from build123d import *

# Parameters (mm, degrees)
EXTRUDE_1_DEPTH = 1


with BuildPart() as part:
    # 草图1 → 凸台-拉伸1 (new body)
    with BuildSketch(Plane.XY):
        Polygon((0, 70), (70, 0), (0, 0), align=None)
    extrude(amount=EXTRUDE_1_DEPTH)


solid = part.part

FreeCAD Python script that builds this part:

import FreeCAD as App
import Part
import Sketcher

V = App.Vector
Q = App.Units.Quantity

doc = App.newDocument("Part")
body = doc.addObject("PartDesign::Body", "Body")

sketch1 = body.newObject("Sketcher::SketchObject", "Sketch")
sketch1.AttachmentSupport = (doc.getObject("XY_Plane"), [""])
sketch1.MapMode = "FlatFace"
sketch1.addGeometry(Part.LineSegment(V(70, 0, 0), V(0, 70, 0)), False)
sketch1.addGeometry(Part.LineSegment(V(0, 70, 0), V(0, 0, 0)), False)
sketch1.addGeometry(Part.LineSegment(V(0, 0, 0), V(70, 0, 0)), False)
sketch1.addConstraint(Sketcher.Constraint("Coincident", 0, 2, 1, 1))
sketch1.addConstraint(Sketcher.Constraint("Coincident", 1, 2, 2, 1))
sketch1.addConstraint(Sketcher.Constraint("Coincident", 2, 2, 0, 1))
sketch1.addConstraint(Sketcher.Constraint("Vertical", 1))
sketch1.addConstraint(Sketcher.Constraint("Horizontal", 2))
sketch1.addConstraint(Sketcher.Constraint("Coincident", 1, 2, -1, 1))
sketch1.addConstraint(Sketcher.Constraint("Equal", 2, 1))
sketch1.addConstraint(Sketcher.Constraint("DistanceX", 2, 1, 2, 2, Q("70 mm")))
pad1 = body.newObject("PartDesign::Pad", "Pad")
pad1.Profile = sketch1
pad1.Length = 1

doc.recompute()
